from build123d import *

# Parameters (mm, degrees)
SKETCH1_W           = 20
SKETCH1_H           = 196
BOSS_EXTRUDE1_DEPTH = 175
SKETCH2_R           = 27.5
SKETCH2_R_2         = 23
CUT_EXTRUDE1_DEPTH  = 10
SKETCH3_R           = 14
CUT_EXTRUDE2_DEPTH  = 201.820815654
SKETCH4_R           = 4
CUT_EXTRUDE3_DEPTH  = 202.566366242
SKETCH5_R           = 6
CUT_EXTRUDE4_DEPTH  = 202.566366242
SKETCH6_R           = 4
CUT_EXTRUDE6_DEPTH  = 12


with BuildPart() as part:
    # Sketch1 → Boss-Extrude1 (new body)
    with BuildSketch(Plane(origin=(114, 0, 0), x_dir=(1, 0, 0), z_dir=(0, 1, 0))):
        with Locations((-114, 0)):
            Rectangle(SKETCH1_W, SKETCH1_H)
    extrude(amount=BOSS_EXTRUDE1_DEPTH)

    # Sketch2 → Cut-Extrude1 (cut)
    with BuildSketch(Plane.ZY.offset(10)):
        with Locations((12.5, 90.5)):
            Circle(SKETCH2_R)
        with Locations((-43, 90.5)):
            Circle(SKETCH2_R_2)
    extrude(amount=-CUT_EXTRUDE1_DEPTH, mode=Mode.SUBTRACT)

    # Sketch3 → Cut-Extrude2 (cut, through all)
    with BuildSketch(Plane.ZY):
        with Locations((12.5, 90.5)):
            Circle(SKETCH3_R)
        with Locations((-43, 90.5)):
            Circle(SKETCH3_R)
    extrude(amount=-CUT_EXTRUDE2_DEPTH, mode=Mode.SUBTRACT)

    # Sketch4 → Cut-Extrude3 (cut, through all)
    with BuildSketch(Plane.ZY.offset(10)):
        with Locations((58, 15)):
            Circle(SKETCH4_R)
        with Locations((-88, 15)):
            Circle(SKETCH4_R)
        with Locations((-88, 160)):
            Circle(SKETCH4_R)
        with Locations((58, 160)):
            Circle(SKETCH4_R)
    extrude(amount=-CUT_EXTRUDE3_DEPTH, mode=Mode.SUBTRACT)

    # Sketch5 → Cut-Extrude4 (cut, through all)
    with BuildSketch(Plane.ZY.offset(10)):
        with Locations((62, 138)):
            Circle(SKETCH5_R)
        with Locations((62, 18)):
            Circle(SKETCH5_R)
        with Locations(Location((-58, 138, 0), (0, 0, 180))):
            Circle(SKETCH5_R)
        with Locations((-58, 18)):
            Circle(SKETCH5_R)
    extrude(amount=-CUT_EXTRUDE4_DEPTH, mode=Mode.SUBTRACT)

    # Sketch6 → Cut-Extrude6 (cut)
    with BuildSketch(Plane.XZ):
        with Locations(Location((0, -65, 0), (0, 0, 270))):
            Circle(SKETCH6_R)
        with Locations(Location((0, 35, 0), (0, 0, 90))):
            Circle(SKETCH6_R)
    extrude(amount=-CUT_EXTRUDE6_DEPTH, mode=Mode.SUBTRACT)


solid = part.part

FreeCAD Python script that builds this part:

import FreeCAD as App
import Part
import Sketcher


def add_polygon(sketch, points):
    """Adds a closed chain of lines whose ends are joined by coincident constraints."""
    first, n = sketch.GeometryCount, len(points)
    for a, b in zip(points, points[1:] + points[:1]):
        sketch.addGeometry(Part.LineSegment(App.Vector(*a, 0), App.Vector(*b, 0)), False)
    for i in range(n):
        sketch.addConstraint(Sketcher.Constraint("Coincident", first + i, 2, first + (i + 1) % n, 1))

doc = App.newDocument("Part")
body = doc.addObject("PartDesign::Body", "Body")

sketch1 = body.newObject("Sketcher::SketchObject", "Sketch")
sketch1.AttachmentSupport = (doc.getObject("XZ_Plane"), [""])
sketch1.MapMode = "FlatFace"
add_polygon(sketch1, [(-10, -98), (-10, 98), (10, 98), (10, -98)])
sketch1.addConstraint(Sketcher.Constraint("Vertical", 0))
sketch1.addConstraint(Sketcher.Constraint("Horizontal", 1))
sketch1.addConstraint(Sketcher.Constraint("Vertical", 2))
sketch1.addConstraint(Sketcher.Constraint("Horizontal", 3))
sketch1.addConstraint(Sketcher.Constraint("Symmetric", 0, 2, 2, 2, -1, 1))
sketch1.addConstraint(Sketcher.Constraint("DistanceX", 1, 1, 1, 2, 20.0))
sketch1.addConstraint(Sketcher.Constraint("DistanceY", 0, 1, 0, 2, 196.0))
pad1 = body.newObject("PartDesign::Pad", "Pad")
pad1.Profile = sketch1
pad1.Length = 175
pad1.Reversed = True

sketch2 = body.newObject("Sketcher::SketchObject", "Sketch001")
sketch2.AttachmentSupport = (doc.getObject("YZ_Plane"), [""])
sketch2.MapMode = "FlatFace"
sketch2.AttachmentOffset = App.Placement(App.Vector(0, 0, -10), App.Rotation())
sketch2.addGeometry(Part.Circle(App.Vector(90.5, 12.5, 0), App.Vector(0, 0, 1), 27.5), False)
sketch2.addGeometry(Part.Circle(App.Vector(90.5, -43, 0), App.Vector(0, 0, 1), 23), False)
sketch2.addConstraint(Sketcher.Constraint("Vertical", 0, 3, 1, 3))
sketch2.addConstraint(Sketcher.Constraint("Diameter", 0, 55.0))
sketch2.addConstraint(Sketcher.Constraint("Diameter", 1, 46.0))
sketch2.addConstraint(Sketcher.Constraint("DistanceY", 1, 3, -1, 1, 43.0))
sketch2.addConstraint(Sketcher.Constraint("DistanceX", -1, 1, 0, 3, 90.5))
sketch2.addConstraint(Sketcher.Constraint("DistanceY", -1, 1, 0, 3, 12.5))
pocket1 = body.newObject("PartDesign::Pocket", "Pocket")
pocket1.Profile = sketch2
pocket1.Length = 10
pocket1.Reversed = True

sketch3 = body.newObject("Sketcher::SketchObject", "Sketch002")
sketch3.AttachmentSupport = (doc.getObject("YZ_Plane"), [""])
sketch3.MapMode = "FlatFace"
sketch3.addGeometry(Part.Circle(App.Vector(90.5, 12.5, 0), App.Vector(0, 0, 1), 14), False)
sketch3.addGeometry(Part.Circle(App.Vector(90.5, -43, 0), App.Vector(0, 0, 1), 14), False)
sketch3.addConstraint(Sketcher.Constraint("Equal", 0, 1))
sketch3.addConstraint(Sketcher.Constraint("Vertical", 0, 3, 1, 3))
sketch3.addConstraint(Sketcher.Constraint("Diameter", 0, 28.0))
sketch3.addConstraint(Sketcher.Constraint("DistanceY", 1, 3, -1, 1, 43.0))
sketch3.addConstraint(Sketcher.Constraint("DistanceX", -1, 1, 0, 3, 90.5))
sketch3.addConstraint(Sketcher.Constraint("DistanceY", -1, 1, 0, 3, 12.5))
pocket2 = body.newObject("PartDesign::Pocket", "Pocket001")
pocket2.Profile = sketch3
pocket2.Type = "ThroughAll"
pocket2.Reversed = True

sketch4 = body.newObject("Sketcher::SketchObject", "Sketch003")
sketch4.AttachmentSupport = (doc.getObject("YZ_Plane"), [""])
sketch4.MapMode = "FlatFace"
sketch4.AttachmentOffset = App.Placement(App.Vector(0, 0, -10), App.Rotation())
sketch4.addGeometry(Part.Circle(App.Vector(15, 58, 0), App.Vector(0, 0, 1), 4), False)
sketch4.addGeometry(Part.Circle(App.Vector(15, -88, 0), App.Vector(0, 0, 1), 4), False)
sketch4.addGeometry(Part.Circle(App.Vector(160, -88, 0), App.Vector(0, 0, 1), 4), False)
sketch4.addGeometry(Part.Circle(App.Vector(160, 58, 0), App.Vector(0, 0, 1), 4), False)
sketch4.addConstraint(Sketcher.Constraint("Equal", 0, 1))
sketch4.addConstraint(Sketcher.Constraint("Equal", 1, 2))
sketch4.addConstraint(Sketcher.Constraint("Equal", 2, 3))
sketch4.addConstraint(Sketcher.Constraint("Horizontal", 1, 3, 2, 3))
sketch4.addConstraint(Sketcher.Constraint("Horizontal", 0, 3, 3, 3))
sketch4.addConstraint(Sketcher.Constraint("Vertical", 0, 3, 1, 3))
sketch4.addConstraint(Sketcher.Constraint("Vertical", 2, 3, 3, 3))
sketch4.addConstraint(Sketcher.Constraint("Diameter", 0, 8.0))
sketch4.addConstraint(Sketcher.Constraint("DistanceX", -1, 1, 0, 3, 15.0))
sketch4.addConstraint(Sketcher.Constraint("DistanceY", -1, 1, 0, 3, 58.0))
sketch4.addConstraint(Sketcher.Constraint("DistanceY", 1, 3, -1, 1, 88.0))
sketch4.addConstraint(Sketcher.Constraint("DistanceX", -1, 1, 2, 3, 160.0))
pocket3 = body.newObject("PartDesign::Pocket", "Pocket002")
pocket3.Profile = sketch4
pocket3.Type = "ThroughAll"
pocket3.Reversed = True

sketch5 = body.newObject("Sketcher::SketchObject", "Sketch004")
sketch5.AttachmentSupport = (doc.getObject("YZ_Plane"), [""])
sketch5.MapMode = "FlatFace"
sketch5.AttachmentOffset = App.Placement(App.Vector(0, 0, -10), App.Rotation())
sketch5.addGeometry(Part.Circle(App.Vector(138, 62, 0), App.Vector(0, 0, 1), 6), False)
sketch5.addGeometry(Part.Circle(App.Vector(18, 62, 0), App.Vector(0, 0, 1), 6), False)
sketch5.addGeometry(Part.Circle(App.Vector(138, -58, 0), App.Vector(0, 0, 1), 6), False)
sketch5.addGeometry(Part.Circle(App.Vector(18, -58, 0), App.Vector(0, 0, 1), 6), False)
sketch5.addConstraint(Sketcher.Constraint("Equal", 0, 1))
sketch5.addConstraint(Sketcher.Constraint("Equal", 1, 2))
sketch5.addConstraint(Sketcher.Constraint("Equal", 2, 3))
sketch5.addConstraint(Sketcher.Constraint("Horizontal", 0, 3, 1, 3))
sketch5.addConstraint(Sketcher.Constraint("Horizontal", 2, 3, 3, 3))
sketch5.addConstraint(Sketcher.Constraint("Vertical", 0, 3, 2, 3))
sketch5.addConstraint(Sketcher.Constraint("Vertical", 1, 3, 3, 3))
sketch5.addConstraint(Sketcher.Constraint("Diameter", 0, 12.0))
sketch5.addConstraint(Sketcher.Constraint("DistanceX", -1, 1, 0, 3, 138.0))
sketch5.addConstraint(Sketcher.Constraint("DistanceY", -1, 1, 0, 3, 62.0))
sketch5.addConstraint(Sketcher.Constraint("DistanceX", -1, 1, 1, 3, 18.0))
sketch5.addConstraint(Sketcher.Constraint("DistanceY", 2, 3, -1, 1, 58.0))
pocket4 = body.newObject("PartDesign::Pocket", "Pocket003")
pocket4.Profile = sketch5
pocket4.Type = "ThroughAll"
pocket4.Reversed = True

sketch6 = body.newObject("Sketcher::SketchObject", "Sketch005")
sketch6.AttachmentSupport = (doc.getObject("XZ_Plane"), [""])
sketch6.MapMode = "FlatFace"
sketch6.addGeometry(Part.Circle(App.Vector(0, -65, 0), App.Vector(0, 0, 1), 4), False)
sketch6.addGeometry(Part.Circle(App.Vector(0, 35, 0), App.Vector(0, 0, 1), 4), False)
sketch6.addConstraint(Sketcher.Constraint("Equal", 0, 1))
sketch6.addConstraint(Sketcher.Constraint("PointOnObject", 0, 3, -2))
sketch6.addConstraint(Sketcher.Constraint("PointOnObject", 1, 3, -2))
sketch6.addConstraint(Sketcher.Constraint("Diameter", 0, 8.0))
sketch6.addConstraint(Sketcher.Constraint("DistanceY", 0, 3, -1, 1, 65.0))
sketch6.addConstraint(Sketcher.Constraint("DistanceY", -1, 1, 1, 3, 35.0))
pocket5 = body.newObject("PartDesign::Pocket", "Pocket004")
pocket5.Profile = sketch6
pocket5.Length = 12

doc.recompute()
